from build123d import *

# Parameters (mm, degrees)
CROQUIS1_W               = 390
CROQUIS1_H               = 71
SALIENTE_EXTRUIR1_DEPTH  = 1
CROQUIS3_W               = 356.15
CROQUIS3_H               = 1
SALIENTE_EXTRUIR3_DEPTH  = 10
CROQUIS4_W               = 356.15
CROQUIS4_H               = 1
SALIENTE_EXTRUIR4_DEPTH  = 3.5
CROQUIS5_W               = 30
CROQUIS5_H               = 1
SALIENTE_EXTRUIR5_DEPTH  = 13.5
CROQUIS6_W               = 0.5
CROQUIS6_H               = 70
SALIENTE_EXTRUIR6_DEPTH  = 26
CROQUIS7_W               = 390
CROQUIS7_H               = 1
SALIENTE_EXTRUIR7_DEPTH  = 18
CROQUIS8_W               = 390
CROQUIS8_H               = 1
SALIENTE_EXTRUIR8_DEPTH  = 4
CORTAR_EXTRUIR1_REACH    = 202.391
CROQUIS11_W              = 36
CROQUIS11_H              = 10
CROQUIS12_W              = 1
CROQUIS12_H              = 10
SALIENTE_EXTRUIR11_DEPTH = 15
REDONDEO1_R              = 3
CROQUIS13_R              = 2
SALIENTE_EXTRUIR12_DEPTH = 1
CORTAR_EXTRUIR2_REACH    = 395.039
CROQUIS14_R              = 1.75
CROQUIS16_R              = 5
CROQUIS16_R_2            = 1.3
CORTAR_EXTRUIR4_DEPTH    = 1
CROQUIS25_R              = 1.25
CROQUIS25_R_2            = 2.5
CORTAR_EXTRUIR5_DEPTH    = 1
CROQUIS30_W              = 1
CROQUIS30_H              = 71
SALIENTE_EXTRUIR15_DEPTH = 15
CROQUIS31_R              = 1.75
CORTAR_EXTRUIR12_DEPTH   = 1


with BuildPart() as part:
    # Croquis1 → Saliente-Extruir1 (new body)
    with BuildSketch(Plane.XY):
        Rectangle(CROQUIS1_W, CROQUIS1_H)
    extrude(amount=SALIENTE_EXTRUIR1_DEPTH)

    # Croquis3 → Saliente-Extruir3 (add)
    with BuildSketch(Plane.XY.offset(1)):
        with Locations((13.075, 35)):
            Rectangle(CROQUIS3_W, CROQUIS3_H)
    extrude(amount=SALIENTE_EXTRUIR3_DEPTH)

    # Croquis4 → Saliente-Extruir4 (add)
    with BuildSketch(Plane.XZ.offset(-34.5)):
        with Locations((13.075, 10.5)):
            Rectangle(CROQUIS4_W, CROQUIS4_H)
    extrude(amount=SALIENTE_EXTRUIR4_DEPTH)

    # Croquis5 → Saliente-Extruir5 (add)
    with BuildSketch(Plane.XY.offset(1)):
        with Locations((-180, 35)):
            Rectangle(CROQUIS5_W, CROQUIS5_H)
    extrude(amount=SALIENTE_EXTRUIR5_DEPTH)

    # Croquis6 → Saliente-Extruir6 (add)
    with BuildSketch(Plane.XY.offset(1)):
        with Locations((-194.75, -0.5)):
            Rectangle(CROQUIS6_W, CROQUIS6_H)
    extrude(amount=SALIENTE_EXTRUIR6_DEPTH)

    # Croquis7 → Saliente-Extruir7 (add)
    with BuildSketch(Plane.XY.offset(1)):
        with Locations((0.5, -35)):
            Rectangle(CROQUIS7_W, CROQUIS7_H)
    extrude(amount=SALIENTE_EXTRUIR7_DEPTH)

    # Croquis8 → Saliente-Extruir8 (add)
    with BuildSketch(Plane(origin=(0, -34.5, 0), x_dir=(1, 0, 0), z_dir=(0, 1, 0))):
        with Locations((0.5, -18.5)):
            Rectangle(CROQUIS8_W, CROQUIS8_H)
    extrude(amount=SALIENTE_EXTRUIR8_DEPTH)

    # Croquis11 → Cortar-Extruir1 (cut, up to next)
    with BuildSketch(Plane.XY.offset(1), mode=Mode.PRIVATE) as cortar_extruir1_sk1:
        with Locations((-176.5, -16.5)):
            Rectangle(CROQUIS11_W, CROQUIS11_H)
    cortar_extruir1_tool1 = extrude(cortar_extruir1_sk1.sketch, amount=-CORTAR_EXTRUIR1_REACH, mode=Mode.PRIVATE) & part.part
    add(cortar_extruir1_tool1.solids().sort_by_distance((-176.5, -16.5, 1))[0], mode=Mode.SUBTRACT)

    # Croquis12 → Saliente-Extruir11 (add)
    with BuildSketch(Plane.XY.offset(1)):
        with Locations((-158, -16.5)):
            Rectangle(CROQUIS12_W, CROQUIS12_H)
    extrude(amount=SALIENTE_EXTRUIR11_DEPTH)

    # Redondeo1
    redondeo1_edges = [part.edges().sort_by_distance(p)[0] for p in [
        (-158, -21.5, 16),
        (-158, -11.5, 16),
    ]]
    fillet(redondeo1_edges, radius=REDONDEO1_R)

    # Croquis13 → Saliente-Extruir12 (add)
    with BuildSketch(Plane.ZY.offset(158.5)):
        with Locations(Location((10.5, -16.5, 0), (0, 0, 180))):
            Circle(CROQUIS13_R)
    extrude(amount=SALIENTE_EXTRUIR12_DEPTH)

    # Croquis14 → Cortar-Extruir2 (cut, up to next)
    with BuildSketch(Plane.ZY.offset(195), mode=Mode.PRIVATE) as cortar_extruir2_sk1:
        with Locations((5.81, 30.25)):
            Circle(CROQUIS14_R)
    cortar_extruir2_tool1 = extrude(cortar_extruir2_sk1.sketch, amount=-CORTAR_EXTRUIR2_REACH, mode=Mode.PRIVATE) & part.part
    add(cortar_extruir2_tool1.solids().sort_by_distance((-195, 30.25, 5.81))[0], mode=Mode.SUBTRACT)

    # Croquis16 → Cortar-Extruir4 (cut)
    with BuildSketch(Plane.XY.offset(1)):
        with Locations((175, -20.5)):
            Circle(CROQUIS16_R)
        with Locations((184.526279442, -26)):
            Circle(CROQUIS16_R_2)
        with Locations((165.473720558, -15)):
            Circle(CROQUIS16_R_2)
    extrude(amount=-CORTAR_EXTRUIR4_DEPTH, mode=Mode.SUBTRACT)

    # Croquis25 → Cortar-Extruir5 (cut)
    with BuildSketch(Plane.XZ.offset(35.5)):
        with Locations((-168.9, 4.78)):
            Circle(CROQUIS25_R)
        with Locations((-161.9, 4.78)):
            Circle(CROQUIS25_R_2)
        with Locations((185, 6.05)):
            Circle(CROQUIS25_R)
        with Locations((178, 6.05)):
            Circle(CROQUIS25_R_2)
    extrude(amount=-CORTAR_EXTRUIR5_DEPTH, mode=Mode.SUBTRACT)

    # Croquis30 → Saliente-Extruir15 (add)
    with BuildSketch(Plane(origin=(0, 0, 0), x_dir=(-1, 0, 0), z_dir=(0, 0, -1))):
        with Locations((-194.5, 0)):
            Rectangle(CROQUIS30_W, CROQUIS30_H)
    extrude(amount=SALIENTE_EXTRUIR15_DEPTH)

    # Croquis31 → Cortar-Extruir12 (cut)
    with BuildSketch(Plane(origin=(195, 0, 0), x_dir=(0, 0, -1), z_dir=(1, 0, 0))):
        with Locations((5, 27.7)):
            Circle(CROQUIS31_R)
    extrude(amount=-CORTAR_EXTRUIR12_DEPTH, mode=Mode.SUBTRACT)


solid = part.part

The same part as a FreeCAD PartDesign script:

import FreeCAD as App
import Part
import Sketcher
from FreeCAD import Vector
Q = App.Units.Quantity


def edges_at(feature, points):
    """Names of the edges that pass closest to the given points."""
    edges = feature.Shape.Edges
    near = lambda p: min(range(len(edges)), key=lambda i: edges[i].distToShape(Part.Vertex(*p))[0])
    return sorted({f"Edge{near(p) + 1}" for p in points})


def add_polygon(sketch, points):
    """Adds a closed chain of lines whose ends are joined by coincident constraints."""
    first, n = sketch.GeometryCount, len(points)
    for a, b in zip(points, points[1:] + points[:1]):
        sketch.addGeometry(Part.LineSegment(App.Vector(*a, 0), App.Vector(*b, 0)), False)
    for i in range(n):
        sketch.addConstraint(Sketcher.Constraint("Coincident", first + i, 2, first + (i + 1) % n, 1))

doc = App.newDocument("Part")
params = doc.addObject("Spreadsheet::Sheet", "Params")
for row, (alias, value) in enumerate([
    ("sketch1_width", "390 mm"),
    ("sketch1_height", "71 mm"),
    ("pad1_length", "1 mm"),
    ("sketch2_height", "1 mm"),
    ("sketch2_width", "356.15 mm"),
    ("pad2_length", "10 mm"),
    ("sketch3_height", "1 mm"),
    ("sketch3_width", "356.15 mm"),
    ("pad3_length", "3.5 mm"),
    ("sketch4_width", "30 mm"),
    ("sketch4_height", "1 mm"),
    ("pad4_length", "13.5 mm"),
    ("sketch5_height", "70 mm"),
    ("sketch5_width", "0.5 mm"),
    ("pad5_length", "26 mm"),
    ("sketch6_width", "390 mm"),
    ("sketch6_height", "1 mm"),
    ("pad6_length", "18 mm"),
    ("sketch7_width", "390 mm"),
    ("sketch7_height", "1 mm"),
    ("pad7_length", "4 mm"),
    ("sketch8_width", "36 mm"),
    ("sketch8_height", "10 mm"),
    ("sketch9_width", "1 mm"),
    ("sketch9_height", "10 mm"),
    ("pad8_length", "15 mm"),
    ("fillet_radius", "3 mm"),
    ("sketch10_diameter", "4 mm"),
    ("pad9_length", "1 mm"),
    ("sketch11_diameter", "3.5 mm"),
    ("sketch12_diameter", "10 mm"),
    ("sketch12_diameter2", "2.6 mm"),
    ("pocket3_length", "1 mm"),
    ("sketch13_diameter", "5 mm"),
    ("sketch13_diameter2", "2.5 mm"),
    ("pocket4_length", "1 mm"),
    ("sketch14_width", "1 mm"),
    ("sketch14_height", "71 mm"),
    ("pad10_length", "15 mm"),
    ("sketch15_diameter", "3.5 mm"),
    ("pocket5_length", "1 mm"),
], start=1):
    params.set(f"A{row}", alias)
    params.set(f"B{row}", "=" + value)
    params.setAlias(f"B{row}", alias)

body = doc.addObject("PartDesign::Body", "Body")

sketch1 = doc.addObject("Sketcher::SketchObject", "Sketch")
body.addObject(sketch1)
sketch1.AttachmentSupport = (doc.XY_Plane, [""])
sketch1.MapMode = "FlatFace"
add_polygon(sketch1, [(-195, 36), (-195, -36), (195, -36), (195, 36)])
sketch1.addConstraint(Sketcher.Constraint("Vertical", 0))
sketch1.addConstraint(Sketcher.Constraint("Horizontal", 1))
sketch1.addConstraint(Sketcher.Constraint("Vertical", 2))
sketch1.addConstraint(Sketcher.Constraint("Horizontal", 3))
sketch1.addConstraint(Sketcher.Constraint("Symmetric", 0, 2, 2, 2, -1, 1))
sketch1.addConstraint(Sketcher.Constraint("DistanceX", 1, 1, 1, 2, Q("390 mm")))
sketch1.addConstraint(Sketcher.Constraint("DistanceY", 0, 2, 0, 1, Q("71 mm")))
sketch1.setExpression("Constraints[9]", "Params.sketch1_width")
sketch1.setExpression("Constraints[10]", "Params.sketch1_height")
pad1 = doc.addObject("PartDesign::Pad", "Pad")
body.addObject(pad1)
pad1.Profile = sketch1
pad1.setExpression("Length", "Params.pad1_length")

sketch2 = doc.addObject("Sketcher::SketchObject", "Sketch001")
body.addObject(sketch2)
sketch2.AttachmentSupport = (doc.XY_Plane, [""])
sketch2.MapMode = "FlatFace"
sketch2.AttachmentOffset = App.Placement(Vector(0, 0, 1), App.Rotation())
add_polygon(sketch2, [(-165, 35.5), (-165, 34.5), (191.2, 34.5), (191.2, 35.5)])
sketch2.addConstraint(Sketcher.Constraint("Vertical", 0))
sketch2.addConstraint(Sketcher.Constraint("Horizontal", 1))
sketch2.addConstraint(Sketcher.Constraint("Vertical", 2))
sketch2.addConstraint(Sketcher.Constraint("Horizontal", 3))
sketch2.addConstraint(Sketcher.Constraint("DistanceY", 0, 2, 0, 1, Q("1 mm")))
sketch2.addConstraint(Sketcher.Constraint("DistanceX", 0, 2, -1, 1, Q("165 mm")))
sketch2.addConstraint(Sketcher.Constraint("DistanceX", 1, 1, 1, 2, Q("356.15 mm")))
sketch2.addConstraint(Sketcher.Constraint("DistanceY", -1, 1, 0, 2, Q("34.5 mm")))
sketch2.setExpression("Constraints[8]", "Params.sketch2_height")
sketch2.setExpression("Constraints[10]", "Params.sketch2_width")
pad2 = doc.addObject("PartDesign::Pad", "Pad001")
body.addObject(pad2)
pad2.Profile = sketch2
pad2.setExpression("Length", "Params.pad2_length")

sketch3 = doc.addObject("Sketcher::SketchObject", "Sketch002")
body.addObject(sketch3)
sketch3.AttachmentSupport = (doc.XZ_Plane, [""])
sketch3.MapMode = "FlatFace"
sketch3.AttachmentOffset = App.Placement(Vector(0, 0, -34.5), App.Rotation())
add_polygon(sketch3, [(-165, 11), (-165, 10), (191.2, 10), (191.2, 11)])
sketch3.addConstraint(Sketcher.Constraint("Vertical", 0))
sketch3.addConstraint(Sketcher.Constraint("Horizontal", 1))
sketch3.addConstraint(Sketcher.Constraint("Vertical", 2))
sketch3.addConstraint(Sketcher.Constraint("Horizontal", 3))
sketch3.addConstraint(Sketcher.Constraint("DistanceY", 0, 2, 0, 1, Q("1 mm")))
sketch3.addConstraint(Sketcher.Constraint("DistanceX", 0, 2, -1, 1, Q("165 mm")))
sketch3.addConstraint(Sketcher.Constraint("DistanceY", -1, 1, 0, 2, Q("10 mm")))
sketch3.addConstraint(Sketcher.Constraint("DistanceX", 1, 1, 1, 2, Q("356.15 mm")))
sketch3.setExpression("Constraints[8]", "Params.sketch3_height")
sketch3.setExpression("Constraints[11]", "Params.sketch3_width")
pad3 = doc.addObject("PartDesign::Pad", "Pad002")
body.addObject(pad3)
pad3.Profile = sketch3
pad3.setExpression("Length", "Params.pad3_length")

sketch4 = doc.addObject("Sketcher::SketchObject", "Sketch003")
body.addObject(sketch4)
sketch4.AttachmentSupport = (doc.XY_Plane, [""])
sketch4.MapMode = "FlatFace"
sketch4.AttachmentOffset = App.Placement(Vector(0, 0, 1), App.Rotation())
add_polygon(sketch4, [(-195, 35.5), (-195, 34.5), (-165, 34.5), (-165, 35.5)])
sketch4.addConstraint(Sketcher.Constraint("Vertical", 0))
sketch4.addConstraint(Sketcher.Constraint("Horizontal", 1))
sketch4.addConstraint(Sketcher.Constraint("Vertical", 2))
sketch4.addConstraint(Sketcher.Constraint("Horizontal", 3))
sketch4.addConstraint(Sketcher.Constraint("DistanceX", 1, 1, 1, 2, Q("30 mm")))
sketch4.addConstraint(Sketcher.Constraint("DistanceY", 0, 2, 0, 1, Q("1 mm")))
sketch4.addConstraint(Sketcher.Constraint("DistanceX", 0, 2, -1, 1, Q("195 mm")))
sketch4.addConstraint(Sketcher.Constraint("DistanceY", -1, 1, 0, 2, Q("34.5 mm")))
sketch4.setExpression("Constraints[8]", "Params.sketch4_width")
sketch4.setExpression("Constraints[9]", "Params.sketch4_height")
pad4 = doc.addObject("PartDesign::Pad", "Pad003")
body.addObject(pad4)
pad4.Profile = sketch4
pad4.setExpression("Length", "Params.pad4_length")

sketch5 = doc.addObject("Sketcher::SketchObject", "Sketch004")
body.addObject(sketch5)
sketch5.AttachmentSupport = (doc.XY_Plane, [""])
sketch5.MapMode = "FlatFace"
sketch5.AttachmentOffset = App.Placement(Vector(0, 0, 1), App.Rotation())
add_polygon(sketch5, [(-195, 34.5), (-195, -35.5), (-194.5, -35.5), (-194.5, 34.5)])
sketch5.addConstraint(Sketcher.Constraint("Vertical", 0))
sketch5.addConstraint(Sketcher.Constraint("Horizontal", 1))
sketch5.addConstraint(Sketcher.Constraint("Vertical", 2))
sketch5.addConstraint(Sketcher.Constraint("Horizontal", 3))
sketch5.addConstraint(Sketcher.Constraint("DistanceY", 0, 2, 0, 1, Q("70 mm")))
sketch5.addConstraint(Sketcher.Constraint("DistanceX", 1, 1, 1, 2, Q("0.5 mm")))
sketch5.addConstraint(Sketcher.Constraint("DistanceX", 0, 2, -1, 1, Q("195 mm")))
sketch5.addConstraint(Sketcher.Constraint("DistanceY", 0, 2, -1, 1, Q("35.5 mm")))
sketch5.setExpression("Constraints[8]", "Params.sketch5_height")
sketch5.setExpression("Constraints[9]", "Params.sketch5_width")
pad5 = doc.addObject("PartDesign::Pad", "Pad004")
body.addObject(pad5)
pad5.Profile = sketch5
pad5.setExpression("Length", "Params.pad5_length")

sketch6 = doc.addObject("Sketcher::SketchObject", "Sketch005")
body.addObject(sketch6)
sketch6.AttachmentSupport = (doc.XY_Plane, [""])
sketch6.MapMode = "FlatFace"
sketch6.AttachmentOffset = App.Placement(Vector(0, 0, 1), App.Rotation())
add_polygon(sketch6, [(-194.5, -34.5), (-194.5, -35.5), (195.5, -35.5), (195.5, -34.5)])
sketch6.addConstraint(Sketcher.Constraint("Vertical", 0))
sketch6.addConstraint(Sketcher.Constraint("Horizontal", 1))
sketch6.addConstraint(Sketcher.Constraint("Vertical", 2))
sketch6.addConstraint(Sketcher.Constraint("Horizontal", 3))
sketch6.addConstraint(Sketcher.Constraint("DistanceX", 1, 1, 1, 2, Q("390 mm")))
sketch6.addConstraint(Sketcher.Constraint("DistanceY", 0, 2, 0, 1, Q("1 mm")))
sketch6.addConstraint(Sketcher.Constraint("DistanceX", 0, 2, -1, 1, Q("194.5 mm")))
sketch6.addConstraint(Sketcher.Constraint("DistanceY", 0, 2, -1, 1, Q("35.5 mm")))
sketch6.setExpression("Constraints[8]", "Params.sketch6_width")
sketch6.setExpression("Constraints[9]", "Params.sketch6_height")
pad6 = doc.addObject("PartDesign::Pad", "Pad005")
body.addObject(pad6)
pad6.Profile = sketch6
pad6.setExpression("Length", "Params.pad6_length")

sketch7 = doc.addObject("Sketcher::SketchObject", "Sketch006")
body.addObject(sketch7)
sketch7.AttachmentSupport = (doc.XZ_Plane, [""])
sketch7.MapMode = "FlatFace"
sketch7.AttachmentOffset = App.Placement(Vector(0, 0, 34.5), App.Rotation())
add_polygon(sketch7, [(-194.5, 18), (-194.5, 19), (195.5, 19), (195.5, 18)])
sketch7.addConstraint(Sketcher.Constraint("Vertical", 0))
sketch7.addConstraint(Sketcher.Constraint("Horizontal", 1))
sketch7.addConstraint(Sketcher.Constraint("Vertical", 2))
sketch7.addConstraint(Sketcher.Constraint("Horizontal", 3))
sketch7.addConstraint(Sketcher.Constraint("DistanceX", 1, 1, 1, 2, Q("390 mm")))
sketch7.addConstraint(Sketcher.Constraint("DistanceY", 0, 1, 0, 2, Q("1 mm")))
sketch7.addConstraint(Sketcher.Constraint("DistanceY", -1, 1, 0, 2, Q("19 mm")))
sketch7.addConstraint(Sketcher.Constraint("DistanceX", 0, 2, -1, 1, Q("194.5 mm")))
sketch7.setExpression("Constraints[8]", "Params.sketch7_width")
sketch7.setExpression("Constraints[9]", "Params.sketch7_height")
pad7 = doc.addObject("PartDesign::Pad", "Pad006")
body.addObject(pad7)
pad7.Profile = sketch7
pad7.setExpression("Length", "Params.pad7_length")
pad7.Reversed = True

sketch8 = doc.addObject("Sketcher::SketchObject", "Sketch007")
body.addObject(sketch8)
sketch8.AttachmentSupport = (doc.XY_Plane, [""])
sketch8.MapMode = "FlatFace"
sketch8.AttachmentOffset = App.Placement(Vector(0, 0, 1), App.Rotation())
add_polygon(sketch8, [(-194, -12), (-194, -22), (-158, -22), (-158, -12)])
sketch8.addConstraint(Sketcher.Constraint("Vertical", 0))
sketch8.addConstraint(Sketcher.Constraint("Horizontal", 1))
sketch8.addConstraint(Sketcher.Constraint("Vertical", 2))
sketch8.addConstraint(Sketcher.Constraint("Horizontal", 3))
sketch8.addConstraint(Sketcher.Constraint("DistanceX", 1, 1, 1, 2, Q("36 mm")))
sketch8.addConstraint(Sketcher.Constraint("DistanceY", 0, 2, 0, 1, Q("10 mm")))
sketch8.addConstraint(Sketcher.Constraint("DistanceX", 0, 2, -1, 1, Q("194.5 mm")))
sketch8.addConstraint(Sketcher.Constraint("DistanceY", 0, 2, -1, 1, Q("21.5 mm")))
sketch8.setExpression("Constraints[8]", "Params.sketch8_width")
sketch8.setExpression("Constraints[9]", "Params.sketch8_height")
pocket1 = doc.addObject("PartDesign::Pocket", "Pocket")
body.addObject(pocket1)
pocket1.Profile = sketch8
pocket1.Type = "UpToFirst"

sketch9 = doc.addObject("Sketcher::SketchObject", "Sketch008")
body.addObject(sketch9)
sketch9.AttachmentSupport = (doc.XY_Plane, [""])
sketch9.MapMode = "FlatFace"
sketch9.AttachmentOffset = App.Placement(Vector(0, 0, 1), App.Rotation())
add_polygon(sketch9, [(-158.5, -11.5), (-158.5, -21.5), (-157.5, -21.5), (-157.5, -11.5)])
sketch9.addConstraint(Sketcher.Constraint("Vertical", 0))
sketch9.addConstraint(Sketcher.Constraint("Horizontal", 1))
sketch9.addConstraint(Sketcher.Constraint("Vertical", 2))
sketch9.addConstraint(Sketcher.Constraint("Horizontal", 3))
sketch9.addConstraint(Sketcher.Constraint("DistanceX", 1, 1, 1, 2, Q("1 mm")))
sketch9.addConstraint(Sketcher.Constraint("DistanceY", 0, 2, 0, 1, Q("10 mm")))
sketch9.addConstraint(Sketcher.Constraint("DistanceX", 0, 2, -1, 1, Q("158.5 mm")))
sketch9.addConstraint(Sketcher.Constraint("DistanceY", 0, 2, -1, 1, Q("21.5 mm")))
sketch9.setExpression("Constraints[8]", "Params.sketch9_width")
sketch9.setExpression("Constraints[9]", "Params.sketch9_height")
pad8 = doc.addObject("PartDesign::Pad", "Pad007")
body.addObject(pad8)
pad8.Profile = sketch9
pad8.setExpression("Length", "Params.pad8_length")
doc.recompute()

fillet = doc.addObject("PartDesign::Fillet", "Fillet")
body.addObject(fillet)
fillet.Base = (pad8, edges_at(pad8, [(-158, -21.5, 16), (-158, -11.5, 16)]))
fillet.setExpression("Radius", "Params.fillet_radius")

sketch10 = doc.addObject("Sketcher::SketchObject", "Sketch009")
body.addObject(sketch10)
sketch10.AttachmentSupport = (doc.YZ_Plane, [""])
sketch10.MapMode = "FlatFace"
sketch10.AttachmentOffset = App.Placement(Vector(0, 0, -158.5), App.Rotation())
sketch10.addGeometry(Part.Circle(Vector(-16.5, 10.5, 0), Vector(0, 0, 1), 2), False)
sketch10.addConstraint(Sketcher.Constraint("Diameter", 0, Q("4 mm")))
sketch10.addConstraint(Sketcher.Constraint("DistanceX", 0, 3, -1, 1, Q("16.5 mm")))
sketch10.addConstraint(Sketcher.Constraint("DistanceY", -1, 1, 0, 3, Q("10.5 mm")))
sketch10.setExpression("Constraints[0]", "Params.sketch10_diameter")
pad9 = doc.addObject("PartDesign::Pad", "Pad008")
body.addObject(pad9)
pad9.Profile = sketch10
pad9.setExpression("Length", "Params.pad9_length")
pad9.Reversed = True

sketch11 = doc.addObject("Sketcher::SketchObject", "Sketch010")
body.addObject(sketch11)
sketch11.AttachmentSupport = (doc.YZ_Plane, [""])
sketch11.MapMode = "FlatFace"
sketch11.AttachmentOffset = App.Placement(Vector(0, 0, -195), App.Rotation())
sketch11.addGeometry(Part.Circle(Vector(30.2, 5.8, 0), Vector(0, 0, 1), 1.8), False)
sketch11.addConstraint(Sketcher.Constraint("Diameter", 0, Q("3.5 mm")))
sketch11.addConstraint(Sketcher.Constraint("DistanceX", -1, 1, 0, 3, Q("30.25 mm")))
sketch11.addConstraint(Sketcher.Constraint("DistanceY", -1, 1, 0, 3, Q("5.81 mm")))
sketch11.setExpression("Constraints[0]", "Params.sketch11_diameter")
pocket2 = doc.addObject("PartDesign::Pocket", "Pocket001")
body.addObject(pocket2)
pocket2.Profile = sketch11
pocket2.Type = "UpToFirst"
pocket2.Reversed = True

sketch12 = doc.addObject("Sketcher::SketchObject", "Sketch011")
body.addObject(sketch12)
sketch12.AttachmentSupport = (doc.XY_Plane, [""])
sketch12.MapMode = "FlatFace"
sketch12.AttachmentOffset = App.Placement(Vector(0, 0, 1), App.Rotation())
sketch12.addGeometry(Part.Circle(Vector(175, -20.5, 0), Vector(0, 0, 1), 5), False)
sketch12.addGeometry(Part.Circle(Vector(184.5, -26, 0), Vector(0, 0, 1), 1.3), False)
sketch12.addGeometry(Part.Circle(Vector(165.5, -15, 0), Vector(0, 0, 1), 1.3), False)
sketch12.addConstraint(Sketcher.Constraint("Equal", 1, 2))
sketch12.addConstraint(Sketcher.Constraint("Diameter", 0, Q("10 mm")))
sketch12.addConstraint(Sketcher.Constraint("Diameter", 1, Q("2.6 mm")))
sketch12.addConstraint(Sketcher.Constraint("DistanceX", -1, 1, 0, 3, Q("175 mm")))
sketch12.addConstraint(Sketcher.Constraint("DistanceY", 1, 3, -1, 1, Q("26 mm")))
sketch12.addConstraint(Sketcher.Constraint("DistanceY", 2, 3, -1, 1, Q("15 mm")))
sketch12.addConstraint(Sketcher.Constraint("DistanceY", 0, 3, -1, 1, Q("20.5 mm")))
sketch12.addConstraint(Sketcher.Constraint("DistanceX", -1, 1, 1, 3, Q("184.526279 mm")))
sketch12.addConstraint(Sketcher.Constraint("DistanceX", -1, 1, 2, 3, Q("165.473721 mm")))
sketch12.setExpression("Constraints[1]", "Params.sketch12_diameter")
sketch12.setExpression("Constraints[2]", "Params.sketch12_diameter2")
pocket3 = doc.addObject("PartDesign::Pocket", "Pocket002")
body.addObject(pocket3)
pocket3.Profile = sketch12
pocket3.setExpression("Length", "Params.pocket3_length")

sketch13 = doc.addObject("Sketcher::SketchObject", "Sketch012")
body.addObject(sketch13)
sketch13.AttachmentSupport = (doc.XZ_Plane, [""])
sketch13.MapMode = "FlatFace"
sketch13.AttachmentOffset = App.Placement(Vector(0, 0, 35.5), App.Rotation())
sketch13.addGeometry(Part.Circle(Vector(-168.9, 4.8, 0), Vector(0, 0, 1), 1.2), False)
sketch13.addGeometry(Part.Circle(Vector(-161.9, 4.8, 0), Vector(0, 0, 1), 2.5), False)
sketch13.addGeometry(Part.Circle(Vector(185, 6, 0), Vector(0, 0, 1), 1.2), False)
sketch13.addGeometry(Part.Circle(Vector(178, 6, 0), Vector(0, 0, 1), 2.5), False)
sketch13.addConstraint(Sketcher.Constraint("Equal", 0, 2))
sketch13.addConstraint(Sketcher.Constraint("Equal", 1, 3))
sketch13.addConstraint(Sketcher.Constraint("Horizontal", 0, 3, 1, 3))
sketch13.addConstraint(Sketcher.Constraint("Horizontal", 2, 3, 3, 3))
sketch13.addConstraint(Sketcher.Constraint("Diameter", 1, Q("5 mm")))
sketch13.addConstraint(Sketcher.Constraint("Diameter", 0, Q("2.5 mm")))
sketch13.addConstraint(Sketcher.Constraint("DistanceX", -1, 1, 2, 3, Q("185 mm")))
sketch13.addConstraint(Sketcher.Constraint("DistanceX", -1, 1, 3, 3, Q("178 mm")))
sketch13.addConstraint(Sketcher.Constraint("DistanceX", 0, 3, 1, 3, Q("7 mm")))
sketch13.addConstraint(Sketcher.Constraint("DistanceX", 0, 3, -1, 1, Q("168.9 mm")))
sketch13.addConstraint(Sketcher.Constraint("DistanceY", -1, 1, 0, 3, Q("4.78 mm")))
sketch13.addConstraint(Sketcher.Constraint("DistanceY", -1, 1, 2, 3, Q("6.05 mm")))
sketch13.setExpression("Constraints[4]", "Params.sketch13_diameter")
sketch13.setExpression("Constraints[5]", "Params.sketch13_diameter2")
pocket4 = doc.addObject("PartDesign::Pocket", "Pocket003")
body.addObject(pocket4)
pocket4.Profile = sketch13
pocket4.setExpression("Length", "Params.pocket4_length")

sketch14 = doc.addObject("Sketcher::SketchObject", "Sketch013")
body.addObject(sketch14)
sketch14.AttachmentSupport = (doc.XY_Plane, [""])
sketch14.MapMode = "FlatFace"
add_polygon(sketch14, [(195, 35.5), (195, -35.5), (194, -35.5), (194, 35.5)])
sketch14.addConstraint(Sketcher.Constraint("Vertical", 0))
sketch14.addConstraint(Sketcher.Constraint("Horizontal", 1))
sketch14.addConstraint(Sketcher.Constraint("Vertical", 2))
sketch14.addConstraint(Sketcher.Constraint("Horizontal", 3))
sketch14.addConstraint(Sketcher.Constraint("DistanceX", 1, 2, 1, 1, Q("1 mm")))
sketch14.addConstraint(Sketcher.Constraint("DistanceY", 0, 2, 0, 1, Q("71 mm")))
sketch14.addConstraint(Sketcher.Constraint("DistanceX", -1, 1, 0, 2, Q("195 mm")))
sketch14.addConstraint(Sketcher.Constraint("DistanceY", 0, 2, -1, 1, Q("35.5 mm")))
sketch14.setExpression("Constraints[8]", "Params.sketch14_width")
sketch14.setExpression("Constraints[9]", "Params.sketch14_height")
pad10 = doc.addObject("PartDesign::Pad", "Pad009")
body.addObject(pad10)
pad10.Profile = sketch14
pad10.setExpression("Length", "Params.pad10_length")
pad10.Reversed = True

sketch15 = doc.addObject("Sketcher::SketchObject", "Sketch014")
body.addObject(sketch15)
sketch15.AttachmentSupport = (doc.YZ_Plane, [""])
sketch15.MapMode = "FlatFace"
sketch15.AttachmentOffset = App.Placement(Vector(0, 0, 195), App.Rotation())
sketch15.addGeometry(Part.Circle(Vector(27.7, -5, 0), Vector(0, 0, 1), 1.8), False)
sketch15.addConstraint(Sketcher.Constraint("Diameter", 0, Q("3.5 mm")))
sketch15.addConstraint(Sketcher.Constraint("DistanceY", 0, 3, -1, 1, Q("5 mm")))
sketch15.addConstraint(Sketcher.Constraint("DistanceX", -1, 1, 0, 3, Q("27.7 mm")))
sketch15.setExpression("Constraints[0]", "Params.sketch15_diameter")
pocket5 = doc.addObject("PartDesign::Pocket", "Pocket004")
body.addObject(pocket5)
pocket5.Profile = sketch15
pocket5.setExpression("Length", "Params.pocket5_length")

doc.recompute()
